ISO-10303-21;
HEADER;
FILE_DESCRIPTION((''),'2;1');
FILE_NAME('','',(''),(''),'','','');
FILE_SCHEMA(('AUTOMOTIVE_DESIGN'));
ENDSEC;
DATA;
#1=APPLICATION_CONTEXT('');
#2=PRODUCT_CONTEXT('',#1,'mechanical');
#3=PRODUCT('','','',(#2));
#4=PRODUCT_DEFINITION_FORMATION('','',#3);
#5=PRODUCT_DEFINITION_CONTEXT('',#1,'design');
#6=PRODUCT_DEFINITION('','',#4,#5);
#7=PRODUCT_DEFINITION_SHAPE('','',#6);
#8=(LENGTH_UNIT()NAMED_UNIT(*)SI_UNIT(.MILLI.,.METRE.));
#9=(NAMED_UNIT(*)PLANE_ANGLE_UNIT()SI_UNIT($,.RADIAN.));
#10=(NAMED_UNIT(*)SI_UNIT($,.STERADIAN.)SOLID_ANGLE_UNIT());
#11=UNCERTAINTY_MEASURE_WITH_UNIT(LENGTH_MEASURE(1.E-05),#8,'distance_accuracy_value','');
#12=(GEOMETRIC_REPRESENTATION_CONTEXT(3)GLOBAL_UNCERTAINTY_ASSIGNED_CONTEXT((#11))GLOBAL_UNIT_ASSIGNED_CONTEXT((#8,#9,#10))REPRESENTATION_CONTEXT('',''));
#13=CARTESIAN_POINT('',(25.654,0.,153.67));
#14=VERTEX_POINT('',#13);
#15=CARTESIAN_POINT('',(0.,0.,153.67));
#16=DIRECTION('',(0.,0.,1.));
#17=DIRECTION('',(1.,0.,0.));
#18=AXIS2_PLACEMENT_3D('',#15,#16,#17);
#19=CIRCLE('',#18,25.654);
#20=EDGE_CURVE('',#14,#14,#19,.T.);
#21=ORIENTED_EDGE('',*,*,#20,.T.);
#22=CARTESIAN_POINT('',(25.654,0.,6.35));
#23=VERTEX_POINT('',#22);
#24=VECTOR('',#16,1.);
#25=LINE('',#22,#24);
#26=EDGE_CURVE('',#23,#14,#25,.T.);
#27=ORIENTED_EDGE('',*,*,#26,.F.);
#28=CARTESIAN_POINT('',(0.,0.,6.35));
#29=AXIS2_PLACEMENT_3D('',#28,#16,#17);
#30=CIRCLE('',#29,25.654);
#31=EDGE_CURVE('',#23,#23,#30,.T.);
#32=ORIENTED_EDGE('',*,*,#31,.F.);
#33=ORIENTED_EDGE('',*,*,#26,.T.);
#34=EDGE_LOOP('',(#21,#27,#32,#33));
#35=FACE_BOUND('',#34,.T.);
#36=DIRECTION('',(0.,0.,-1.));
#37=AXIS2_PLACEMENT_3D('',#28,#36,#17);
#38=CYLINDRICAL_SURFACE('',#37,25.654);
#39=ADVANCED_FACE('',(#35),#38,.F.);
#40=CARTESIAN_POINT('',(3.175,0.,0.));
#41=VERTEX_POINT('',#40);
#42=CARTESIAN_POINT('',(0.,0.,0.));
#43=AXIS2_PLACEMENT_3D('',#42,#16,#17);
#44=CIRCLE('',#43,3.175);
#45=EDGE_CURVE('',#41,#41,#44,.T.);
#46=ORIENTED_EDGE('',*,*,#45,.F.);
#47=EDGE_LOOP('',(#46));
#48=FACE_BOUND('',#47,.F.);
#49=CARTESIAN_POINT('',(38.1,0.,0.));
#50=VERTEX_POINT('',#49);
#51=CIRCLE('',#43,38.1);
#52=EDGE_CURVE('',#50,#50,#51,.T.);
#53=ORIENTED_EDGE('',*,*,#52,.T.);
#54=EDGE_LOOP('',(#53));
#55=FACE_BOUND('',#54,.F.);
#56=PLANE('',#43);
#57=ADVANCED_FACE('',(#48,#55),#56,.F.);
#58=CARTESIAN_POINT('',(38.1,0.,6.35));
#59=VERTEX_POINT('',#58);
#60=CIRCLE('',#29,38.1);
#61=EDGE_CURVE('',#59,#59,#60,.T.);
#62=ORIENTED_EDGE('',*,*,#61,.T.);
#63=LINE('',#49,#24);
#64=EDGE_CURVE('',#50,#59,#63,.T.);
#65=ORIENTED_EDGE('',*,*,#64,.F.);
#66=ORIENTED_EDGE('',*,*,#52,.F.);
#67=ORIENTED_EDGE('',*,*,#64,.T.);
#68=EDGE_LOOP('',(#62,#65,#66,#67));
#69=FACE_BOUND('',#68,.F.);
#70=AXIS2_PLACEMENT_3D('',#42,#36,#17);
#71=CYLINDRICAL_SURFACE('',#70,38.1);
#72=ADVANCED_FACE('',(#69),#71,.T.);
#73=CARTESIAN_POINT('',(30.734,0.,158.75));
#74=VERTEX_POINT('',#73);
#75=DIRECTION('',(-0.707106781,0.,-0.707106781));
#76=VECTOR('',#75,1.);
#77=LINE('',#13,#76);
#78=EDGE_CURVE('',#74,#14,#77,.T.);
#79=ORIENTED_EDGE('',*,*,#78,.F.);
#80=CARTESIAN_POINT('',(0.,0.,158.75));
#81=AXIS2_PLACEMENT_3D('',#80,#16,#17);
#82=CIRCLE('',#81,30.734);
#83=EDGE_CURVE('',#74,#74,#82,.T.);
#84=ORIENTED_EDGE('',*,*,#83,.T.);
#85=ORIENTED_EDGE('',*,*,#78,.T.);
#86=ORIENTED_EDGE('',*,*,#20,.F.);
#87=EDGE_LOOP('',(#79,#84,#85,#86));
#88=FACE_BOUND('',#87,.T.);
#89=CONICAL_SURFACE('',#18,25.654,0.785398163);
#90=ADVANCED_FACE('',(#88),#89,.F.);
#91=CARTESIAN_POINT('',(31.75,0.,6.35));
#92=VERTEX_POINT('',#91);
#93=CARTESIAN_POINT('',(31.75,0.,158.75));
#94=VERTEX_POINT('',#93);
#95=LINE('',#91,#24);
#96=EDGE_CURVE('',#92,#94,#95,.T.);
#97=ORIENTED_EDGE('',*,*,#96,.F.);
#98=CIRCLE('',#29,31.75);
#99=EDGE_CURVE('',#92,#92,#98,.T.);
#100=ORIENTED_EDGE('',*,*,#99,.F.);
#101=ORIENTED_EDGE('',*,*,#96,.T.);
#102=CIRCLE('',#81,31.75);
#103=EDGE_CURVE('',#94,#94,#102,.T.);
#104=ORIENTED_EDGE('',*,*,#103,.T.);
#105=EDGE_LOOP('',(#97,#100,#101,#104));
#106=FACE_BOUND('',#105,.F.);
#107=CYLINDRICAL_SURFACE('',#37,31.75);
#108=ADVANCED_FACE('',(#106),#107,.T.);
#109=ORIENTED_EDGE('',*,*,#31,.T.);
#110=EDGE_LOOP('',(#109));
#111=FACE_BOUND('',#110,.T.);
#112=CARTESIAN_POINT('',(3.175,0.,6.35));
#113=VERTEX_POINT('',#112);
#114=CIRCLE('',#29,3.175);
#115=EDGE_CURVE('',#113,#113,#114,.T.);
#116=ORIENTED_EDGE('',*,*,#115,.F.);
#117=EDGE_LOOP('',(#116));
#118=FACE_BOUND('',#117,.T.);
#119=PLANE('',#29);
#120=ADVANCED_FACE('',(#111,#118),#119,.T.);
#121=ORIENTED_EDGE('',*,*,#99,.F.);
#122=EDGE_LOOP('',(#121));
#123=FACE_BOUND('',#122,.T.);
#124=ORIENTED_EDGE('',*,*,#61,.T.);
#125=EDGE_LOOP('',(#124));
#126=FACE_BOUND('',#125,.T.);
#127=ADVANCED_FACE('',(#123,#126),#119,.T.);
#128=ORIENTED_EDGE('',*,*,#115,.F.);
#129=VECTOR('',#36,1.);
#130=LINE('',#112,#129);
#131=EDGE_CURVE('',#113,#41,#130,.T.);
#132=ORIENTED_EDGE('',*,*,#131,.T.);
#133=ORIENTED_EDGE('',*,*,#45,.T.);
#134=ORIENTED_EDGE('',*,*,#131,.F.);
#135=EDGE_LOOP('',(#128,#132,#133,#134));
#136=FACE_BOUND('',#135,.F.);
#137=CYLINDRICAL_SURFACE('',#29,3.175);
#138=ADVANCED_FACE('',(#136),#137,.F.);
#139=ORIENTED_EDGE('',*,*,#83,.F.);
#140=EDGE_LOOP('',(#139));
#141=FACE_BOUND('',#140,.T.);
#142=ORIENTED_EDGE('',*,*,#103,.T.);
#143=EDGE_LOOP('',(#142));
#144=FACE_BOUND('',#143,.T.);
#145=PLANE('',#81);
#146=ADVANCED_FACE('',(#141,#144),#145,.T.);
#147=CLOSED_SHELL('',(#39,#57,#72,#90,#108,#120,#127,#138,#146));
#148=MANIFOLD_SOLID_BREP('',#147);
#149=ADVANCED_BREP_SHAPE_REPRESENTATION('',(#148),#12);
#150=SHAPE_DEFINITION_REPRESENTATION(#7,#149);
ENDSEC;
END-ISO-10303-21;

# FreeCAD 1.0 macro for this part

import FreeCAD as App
import Part
import Sketcher
Q = App.Units.Quantity


def edges_at(feature, points):
    """Names of the edges that pass closest to the given points."""
    edges = feature.Shape.Edges
    near = lambda p: min(range(len(edges)), key=lambda i: edges[i].distToShape(Part.Vertex(*p))[0])
    return sorted({f"Edge{near(p) + 1}" for p in points})

doc = App.newDocument("Part")
params = doc.addObject("Spreadsheet::Sheet", "Params")
for row, (alias, value) in enumerate([
    ("sketch1_diameter", "3 in"),
    ("pad1_length", "0.25 in"),
    ("sketch2_diameter", "2.5 in"),
    ("sketch2_diameter2", "2.02 in"),
    ("pad2_length", "6 in"),
    ("sketch3_diameter", "0.25 in"),
    ("pocket1_length", "1 in"),
    ("chamfer_size", "0.2 in"),
], start=1):
    params.set(f"A{row}", alias)
    params.set(f"B{row}", "=" + value)
    params.setAlias(f"B{row}", alias)

body = doc.addObject("PartDesign::Body", "Body")

# Sketch on XY plane
sketch1 = body.newObject("Sketcher::SketchObject", "Sketch")
sketch1.AttachmentSupport = (doc.getObject("XY_Plane"), [""])
sketch1.MapMode = "FlatFace"
sketch1.addGeometry(Part.Circle(App.Vector(0, 0, 0), App.Vector(0, 0, 1), 38.1), False)
sketch1.addConstraint([
    Sketcher.Constraint("Coincident", 0, 3, -1, 1),
    Sketcher.Constraint("Diameter", 0, Q("3 in")),
])
sketch1.setExpression("Constraints[1]", "Params.sketch1_diameter")
pad1 = body.newObject("PartDesign::Pad", "Pad")
pad1.Profile = sketch1
pad1.setExpression("Length", "Params.pad1_length")

# Sketch on XY plane
sketch2 = body.newObject("Sketcher::SketchObject", "Sketch001")
sketch2.AttachmentSupport = (doc.getObject("XY_Plane"), [""])
sketch2.MapMode = "FlatFace"
sketch2.AttachmentOffset = App.Placement(App.Vector(0, 0, 0.25 * 25.4), App.Rotation())
sketch2.addGeometry([
    Part.Circle(App.Vector(0, 0, 0), App.Vector(0, 0, 1), 31.75),
    Part.Circle(App.Vector(0, 0, 0), App.Vector(0, 0, 1), 25.654),
], False)
sketch2.addConstraint([
    Sketcher.Constraint("Coincident", 0, 3, -1, 1),
    Sketcher.Constraint("Coincident", 1, 3, -1, 1),
    Sketcher.Constraint("Diameter", 0, Q("2.5 in")),
    Sketcher.Constraint("Diameter", 1, Q("2.02 in")),
])
sketch2.setExpression("Constraints[2]", "Params.sketch2_diameter")
sketch2.setExpression("Constraints[3]", "Params.sketch2_diameter2")
pad2 = body.newObject("PartDesign::Pad", "Pad001")
pad2.Profile = sketch2
pad2.setExpression("Length", "Params.pad2_length")

# Sketch on XY plane
sketch3 = body.newObject("Sketcher::SketchObject", "Sketch002")
sketch3.AttachmentSupport = (doc.getObject("XY_Plane"), [""])
sketch3.MapMode = "FlatFace"
sketch3.AttachmentOffset = App.Placement(App.Vector(0, 0, 0.25 * 25.4), App.Rotation())
sketch3.addGeometry(Part.Circle(App.Vector(0, 0, 0), App.Vector(0, 0, 1), 3.175), False)
sketch3.addConstraint([
    Sketcher.Constraint("Coincident", 0, 3, -1, 1),
    Sketcher.Constraint("Diameter", 0, Q("0.25 in")),
])
sketch3.setExpression("Constraints[1]", "Params.sketch3_diameter")
pocket1 = body.newObject("PartDesign::Pocket", "Pocket")
pocket1.Profile = sketch3
pocket1.setExpression("Length", "Params.pocket1_length")
doc.recompute()

chamfer = body.newObject("PartDesign::Chamfer", "Chamfer")
chamfer.Base = (pocket1, edges_at(pocket1, [(-25.654, 0, 158.75)]))
chamfer.setExpression("Size", "Params.chamfer_size")

doc.recompute()
